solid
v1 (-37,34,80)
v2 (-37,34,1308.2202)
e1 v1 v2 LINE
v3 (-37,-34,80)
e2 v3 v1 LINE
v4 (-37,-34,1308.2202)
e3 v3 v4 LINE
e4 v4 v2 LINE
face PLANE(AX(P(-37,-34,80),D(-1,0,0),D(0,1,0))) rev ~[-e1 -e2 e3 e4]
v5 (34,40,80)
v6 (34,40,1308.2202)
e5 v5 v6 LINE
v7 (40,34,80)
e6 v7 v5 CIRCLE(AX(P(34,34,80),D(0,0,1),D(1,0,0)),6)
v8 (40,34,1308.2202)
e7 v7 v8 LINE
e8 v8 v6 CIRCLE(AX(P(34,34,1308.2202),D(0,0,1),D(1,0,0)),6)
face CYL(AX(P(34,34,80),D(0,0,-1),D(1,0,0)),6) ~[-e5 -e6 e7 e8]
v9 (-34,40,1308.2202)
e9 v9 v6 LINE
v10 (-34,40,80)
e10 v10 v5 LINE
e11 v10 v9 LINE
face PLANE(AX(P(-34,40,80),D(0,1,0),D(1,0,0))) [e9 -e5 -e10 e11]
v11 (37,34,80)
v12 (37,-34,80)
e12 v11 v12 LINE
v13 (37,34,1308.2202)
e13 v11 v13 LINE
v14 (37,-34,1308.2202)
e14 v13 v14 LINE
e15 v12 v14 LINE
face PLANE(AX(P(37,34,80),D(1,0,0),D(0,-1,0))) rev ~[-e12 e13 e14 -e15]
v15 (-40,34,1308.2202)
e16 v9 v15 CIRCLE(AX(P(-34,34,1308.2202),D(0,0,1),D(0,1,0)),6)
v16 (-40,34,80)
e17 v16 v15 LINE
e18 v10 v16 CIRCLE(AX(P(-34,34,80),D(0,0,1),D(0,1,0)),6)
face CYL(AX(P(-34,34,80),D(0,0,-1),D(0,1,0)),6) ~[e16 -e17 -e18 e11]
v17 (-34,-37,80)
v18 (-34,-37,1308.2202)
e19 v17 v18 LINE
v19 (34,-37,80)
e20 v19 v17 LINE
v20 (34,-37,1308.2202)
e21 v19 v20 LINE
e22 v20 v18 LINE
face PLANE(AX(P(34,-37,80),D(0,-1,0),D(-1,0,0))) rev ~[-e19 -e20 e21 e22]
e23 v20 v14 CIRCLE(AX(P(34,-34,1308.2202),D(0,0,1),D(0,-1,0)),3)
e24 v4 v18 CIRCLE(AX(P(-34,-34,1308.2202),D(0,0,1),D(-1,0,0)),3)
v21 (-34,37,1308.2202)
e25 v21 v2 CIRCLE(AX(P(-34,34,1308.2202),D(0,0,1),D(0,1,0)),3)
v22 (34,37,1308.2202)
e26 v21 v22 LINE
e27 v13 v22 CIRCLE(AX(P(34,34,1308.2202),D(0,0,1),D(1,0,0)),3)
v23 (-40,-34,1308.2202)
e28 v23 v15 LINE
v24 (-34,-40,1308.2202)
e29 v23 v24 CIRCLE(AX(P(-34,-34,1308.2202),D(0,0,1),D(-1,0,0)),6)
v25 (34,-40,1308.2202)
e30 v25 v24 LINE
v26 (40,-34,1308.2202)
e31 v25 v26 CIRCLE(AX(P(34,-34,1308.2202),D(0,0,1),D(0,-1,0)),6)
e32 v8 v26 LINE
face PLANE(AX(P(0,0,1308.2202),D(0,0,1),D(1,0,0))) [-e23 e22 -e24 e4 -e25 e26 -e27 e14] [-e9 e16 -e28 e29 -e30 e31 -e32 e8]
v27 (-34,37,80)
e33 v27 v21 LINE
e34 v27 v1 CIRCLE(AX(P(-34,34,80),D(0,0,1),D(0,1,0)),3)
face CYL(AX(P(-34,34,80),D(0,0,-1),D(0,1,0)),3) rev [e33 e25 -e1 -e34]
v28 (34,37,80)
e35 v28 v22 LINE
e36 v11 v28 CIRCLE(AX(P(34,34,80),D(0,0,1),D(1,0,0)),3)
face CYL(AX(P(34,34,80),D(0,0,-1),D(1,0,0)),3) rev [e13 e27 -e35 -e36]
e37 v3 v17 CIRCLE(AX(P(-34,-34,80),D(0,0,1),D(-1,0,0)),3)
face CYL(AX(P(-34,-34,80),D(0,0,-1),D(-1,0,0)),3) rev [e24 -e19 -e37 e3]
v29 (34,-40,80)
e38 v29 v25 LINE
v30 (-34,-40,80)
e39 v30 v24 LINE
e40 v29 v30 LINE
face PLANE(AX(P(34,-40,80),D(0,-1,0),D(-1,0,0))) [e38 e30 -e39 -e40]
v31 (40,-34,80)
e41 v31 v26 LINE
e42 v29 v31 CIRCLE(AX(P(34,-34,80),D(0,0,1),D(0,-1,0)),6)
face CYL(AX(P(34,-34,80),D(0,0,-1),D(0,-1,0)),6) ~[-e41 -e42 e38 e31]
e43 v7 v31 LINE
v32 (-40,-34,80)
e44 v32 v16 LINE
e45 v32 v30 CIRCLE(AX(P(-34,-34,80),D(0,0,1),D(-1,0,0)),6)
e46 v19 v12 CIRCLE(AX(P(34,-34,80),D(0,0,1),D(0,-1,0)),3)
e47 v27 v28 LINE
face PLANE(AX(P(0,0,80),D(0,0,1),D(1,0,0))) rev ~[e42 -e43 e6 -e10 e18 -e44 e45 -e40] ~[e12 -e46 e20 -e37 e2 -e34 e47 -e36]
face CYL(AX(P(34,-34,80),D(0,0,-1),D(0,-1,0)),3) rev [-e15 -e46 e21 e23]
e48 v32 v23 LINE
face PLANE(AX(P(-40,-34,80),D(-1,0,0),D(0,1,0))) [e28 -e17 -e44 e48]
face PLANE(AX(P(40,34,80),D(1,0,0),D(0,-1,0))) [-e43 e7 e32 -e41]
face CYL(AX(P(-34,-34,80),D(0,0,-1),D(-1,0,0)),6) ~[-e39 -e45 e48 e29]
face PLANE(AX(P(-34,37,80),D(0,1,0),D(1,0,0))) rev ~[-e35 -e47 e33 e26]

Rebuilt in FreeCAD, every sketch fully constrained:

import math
import FreeCAD as App
import Part
import Sketcher
from FreeCAD import Vector

doc = App.newDocument("Part")
body = doc.addObject("PartDesign::Body", "Body")

sketch1 = body.newObject("Sketcher::SketchObject", "Sketch")
sketch1.AttachmentSupport = (doc.getObject("XY_Plane"), [""])
sketch1.MapMode = "FlatFace"
sketch1.AttachmentOffset = App.Placement(Vector(0, 0, 80), App.Rotation())
sketch1.addGeometry([
    Part.LineSegment(Vector(-40, 34, 0), Vector(-40, -34, 0)),
    Part.ArcOfCircle(Part.Circle(Vector(-34, -34, 0), Vector(0, 0, 1), 6), math.radians(180), math.radians(270)),
    Part.LineSegment(Vector(-34, -40, 0), Vector(34, -40, 0)),
    Part.ArcOfCircle(Part.Circle(Vector(34, -34, 0), Vector(0, 0, 1), 6), math.radians(-90), math.radians(0)),
    Part.LineSegment(Vector(40, -34, 0), Vector(40, 34, 0)),
    Part.ArcOfCircle(Part.Circle(Vector(34, 34, 0), Vector(0, 0, 1), 6), math.radians(0), math.radians(90)),
    Part.LineSegment(Vector(34, 40, 0), Vector(-34, 40, 0)),
    Part.ArcOfCircle(Part.Circle(Vector(-34, 34, 0), Vector(0, 0, 1), 6), math.radians(90), math.radians(180)),
    Part.ArcOfCircle(Part.Circle(Vector(-34, 34, 0), Vector(0, 0, 1), 3), math.radians(90), math.radians(180)),
    Part.LineSegment(Vector(-34, 37, 0), Vector(34, 37, 0)),
    Part.ArcOfCircle(Part.Circle(Vector(34, 34, 0), Vector(0, 0, 1), 3), math.radians(0), math.radians(90)),
    Part.LineSegment(Vector(37, 34, 0), Vector(37, -34, 0)),
    Part.ArcOfCircle(Part.Circle(Vector(34, -34, 0), Vector(0, 0, 1), 3), math.radians(-90), math.radians(0)),
    Part.LineSegment(Vector(34, -37, 0), Vector(-34, -37, 0)),
    Part.ArcOfCircle(Part.Circle(Vector(-34, -34, 0), Vector(0, 0, 1), 3), math.radians(180), math.radians(270)),
    Part.LineSegment(Vector(-37, -34, 0), Vector(-37, 34, 0)),
], False)
sketch1.addConstraint([
    Sketcher.Constraint("Tangent", 0, 2, 1, 1),
    Sketcher.Constraint("Tangent", 1, 2, 2, 1),
    Sketcher.Constraint("Tangent", 2, 2, 3, 1),
    Sketcher.Constraint("Tangent", 3, 2, 4, 1),
    Sketcher.Constraint("Tangent", 4, 2, 5, 1),
    Sketcher.Constraint("Tangent", 5, 2, 6, 1),
    Sketcher.Constraint("Tangent", 6, 2, 7, 1),
    Sketcher.Constraint("Tangent", 7, 2, 0, 1),
    Sketcher.Constraint("Tangent", 8, 1, 9, 1),
    Sketcher.Constraint("Tangent", 9, 2, 10, 2),
    Sketcher.Constraint("Tangent", 10, 1, 11, 1),
    Sketcher.Constraint("Tangent", 11, 2, 12, 2),
    Sketcher.Constraint("Tangent", 12, 1, 13, 1),
    Sketcher.Constraint("Tangent", 13, 2, 14, 2),
    Sketcher.Constraint("Tangent", 14, 1, 15, 1),
    Sketcher.Constraint("Tangent", 15, 2, 8, 2),
    Sketcher.Constraint("Vertical", 0),
    Sketcher.Constraint("Horizontal", 2),
    Sketcher.Constraint("Vertical", 4),
    Sketcher.Constraint("Horizontal", 6),
    Sketcher.Constraint("Horizontal", 9),
    Sketcher.Constraint("Vertical", 11),
    Sketcher.Constraint("Horizontal", 13),
    Sketcher.Constraint("Vertical", 15),
    Sketcher.Constraint("Coincident", 8, 3, 7, 3),
    Sketcher.Constraint("Coincident", 10, 3, 5, 3),
    Sketcher.Constraint("Coincident", 12, 3, 3, 3),
    Sketcher.Constraint("Equal", 1, 3),
    Sketcher.Constraint("Equal", 3, 5),
    Sketcher.Constraint("Equal", 5, 7),
    Sketcher.Constraint("Equal", 12, 14),
    Sketcher.Constraint("Symmetric", 1, 3, 5, 3, -1, 1),
    Sketcher.Constraint("Equal", 13, 0),
    Sketcher.Constraint("Radius", 1, 6.0),
    Sketcher.Constraint("Radius", 8, 3.0),
    Sketcher.Constraint("DistanceX", 0, 2, -1, 1, 40.0),
])
pad1 = body.newObject("PartDesign::Pad", "Pad")
pad1.Profile = sketch1
pad1.Length = 1228.2202

doc.recompute()
